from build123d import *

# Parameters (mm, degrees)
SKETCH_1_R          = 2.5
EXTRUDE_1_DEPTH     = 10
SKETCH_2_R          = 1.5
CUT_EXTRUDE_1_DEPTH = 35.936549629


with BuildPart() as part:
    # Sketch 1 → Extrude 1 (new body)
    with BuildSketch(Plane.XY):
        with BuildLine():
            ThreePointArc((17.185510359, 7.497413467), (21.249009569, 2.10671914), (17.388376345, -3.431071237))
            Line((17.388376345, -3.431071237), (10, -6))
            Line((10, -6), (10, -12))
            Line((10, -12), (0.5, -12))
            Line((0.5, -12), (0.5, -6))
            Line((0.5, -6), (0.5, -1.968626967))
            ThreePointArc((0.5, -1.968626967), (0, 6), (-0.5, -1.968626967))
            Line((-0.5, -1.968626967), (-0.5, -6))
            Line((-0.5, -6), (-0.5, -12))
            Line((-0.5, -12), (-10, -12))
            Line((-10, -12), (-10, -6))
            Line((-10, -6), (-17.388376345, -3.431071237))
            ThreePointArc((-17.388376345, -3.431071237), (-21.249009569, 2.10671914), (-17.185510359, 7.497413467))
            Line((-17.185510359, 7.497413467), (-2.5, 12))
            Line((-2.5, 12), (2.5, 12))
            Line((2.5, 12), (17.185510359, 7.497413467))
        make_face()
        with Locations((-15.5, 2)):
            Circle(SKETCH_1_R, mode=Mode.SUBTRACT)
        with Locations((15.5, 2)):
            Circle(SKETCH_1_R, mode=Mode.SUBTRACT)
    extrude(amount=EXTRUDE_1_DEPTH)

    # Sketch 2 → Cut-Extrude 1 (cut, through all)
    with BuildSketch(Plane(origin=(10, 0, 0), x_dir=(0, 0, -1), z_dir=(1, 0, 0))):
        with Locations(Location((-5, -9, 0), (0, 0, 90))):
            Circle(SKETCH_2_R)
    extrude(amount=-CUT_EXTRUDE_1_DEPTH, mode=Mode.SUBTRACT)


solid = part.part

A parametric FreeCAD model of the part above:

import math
import FreeCAD as App
import Part
import Sketcher
from FreeCAD import Vector
Q = App.Units.Quantity

doc = App.newDocument("Part")
body = doc.addObject("PartDesign::Body", "Body")

sketch1 = body.newObject("Sketcher::SketchObject", "Sketch")
sketch1.AttachmentSupport = (doc.getObject("XY_Plane"), [""])
sketch1.MapMode = "FlatFace"
sketch1.addGeometry([
    Part.ArcOfCircle(Part.Circle(Vector(15.5, 2, 0), Vector(0, 0, 1), 5.8), math.radians(-71), math.radians(73)),
    Part.LineSegment(Vector(17.2, 7.5, 0), Vector(2.5, 12, 0)),
    Part.LineSegment(Vector(2.5, 12, 0), Vector(-2.5, 12, 0)),
    Part.LineSegment(Vector(-2.5, 12, 0), Vector(-17.2, 7.5, 0)),
    Part.ArcOfCircle(Part.Circle(Vector(-15.5, 2, 0), Vector(0, 0, 1), 5.8), math.radians(107), math.radians(251)),
    Part.LineSegment(Vector(-17.4, -3.4, 0), Vector(-10, -6, 0)),
    Part.LineSegment(Vector(-10, -6, 0), Vector(-10, -12, 0)),
    Part.LineSegment(Vector(-10, -12, 0), Vector(-0.5, -12, 0)),
    Part.LineSegment(Vector(-0.5, -12, 0), Vector(-0.5, -2, 0)),
    Part.ArcOfCircle(Part.Circle(Vector(0, 2, 0), Vector(0, 0, 1), 4), math.radians(-83), math.radians(263)),
    Part.LineSegment(Vector(0.5, -2, 0), Vector(0.5, -12, 0)),
    Part.LineSegment(Vector(0.5, -12, 0), Vector(10, -12, 0)),
    Part.LineSegment(Vector(10, -12, 0), Vector(10, -6, 0)),
    Part.LineSegment(Vector(10, -6, 0), Vector(17.4, -3.4, 0)),
    Part.Circle(Vector(15.5, 2, 0), Vector(0, 0, 1), 2.5),
    Part.Circle(Vector(-15.5, 2, 0), Vector(0, 0, 1), 2.5),
], False)
sketch1.addConstraint([
    Sketcher.Constraint("Tangent", 0, 2, 1, 1),
    Sketcher.Constraint("Coincident", 1, 2, 2, 1),
    Sketcher.Constraint("Coincident", 2, 2, 3, 1),
    Sketcher.Constraint("Tangent", 3, 2, 4, 1),
    Sketcher.Constraint("Tangent", 4, 2, 5, 1),
    Sketcher.Constraint("Coincident", 5, 2, 6, 1),
    Sketcher.Constraint("Coincident", 6, 2, 7, 1),
    Sketcher.Constraint("Coincident", 7, 2, 8, 1),
    Sketcher.Constraint("Coincident", 8, 2, 9, 2),
    Sketcher.Constraint("Coincident", 9, 1, 10, 1),
    Sketcher.Constraint("Coincident", 10, 2, 11, 1),
    Sketcher.Constraint("Coincident", 11, 2, 12, 1),
    Sketcher.Constraint("Coincident", 12, 2, 13, 1),
    Sketcher.Constraint("Tangent", 13, 2, 0, 1),
    Sketcher.Constraint("Horizontal", 2),
    Sketcher.Constraint("Vertical", 6),
    Sketcher.Constraint("Horizontal", 7),
    Sketcher.Constraint("Vertical", 8),
    Sketcher.Constraint("Vertical", 10),
    Sketcher.Constraint("Horizontal", 11),
    Sketcher.Constraint("Vertical", 12),
    Sketcher.Constraint("Coincident", 14, 3, 0, 3),
    Sketcher.Constraint("Coincident", 15, 3, 4, 3),
    Sketcher.Constraint("Equal", 0, 4),
    Sketcher.Constraint("Equal", 14, 15),
    Sketcher.Constraint("Symmetric", 0, 3, 4, 3, -2),
    Sketcher.Constraint("Symmetric", 8, 2, 9, 1, -2),
    Sketcher.Constraint("Symmetric", 6, 2, 11, 2, -2),
    Sketcher.Constraint("Horizontal", 4, 3, 9, 3),
    Sketcher.Constraint("Horizontal", 0, 2, 3, 2),
    Sketcher.Constraint("Horizontal", 5, 2, 12, 2),
    Sketcher.Constraint("Diameter", 14, Q("5 mm")),
    Sketcher.Constraint("Radius", 9, Q("4 mm")),
    Sketcher.Constraint("DistanceX", 2, 2, 2, 1, Q("5 mm")),
    Sketcher.Constraint("DistanceY", 6, 2, 6, 1, Q("6 mm")),
    Sketcher.Constraint("Radius", 0, Q("5.75 mm")),
    Sketcher.Constraint("DistanceX", 7, 1, 7, 2, Q("9.5 mm")),
    Sketcher.Constraint("DistanceY", -1, 1, 0, 3, Q("2 mm")),
    Sketcher.Constraint("DistanceY", -1, 1, 1, 2, Q("12 mm")),
    Sketcher.Constraint("DistanceX", 5, 2, -1, 1, Q("10 mm")),
    Sketcher.Constraint("DistanceY", 5, 2, -1, 1, Q("6 mm")),
    Sketcher.Constraint("DistanceX", 4, 3, 0, 3, Q("31 mm")),
])
pad1 = body.newObject("PartDesign::Pad", "Pad")
pad1.Profile = sketch1
pad1.Length = 10

sketch2 = body.newObject("Sketcher::SketchObject", "Sketch001")
sketch2.AttachmentSupport = (doc.getObject("YZ_Plane"), [""])
sketch2.MapMode = "FlatFace"
sketch2.AttachmentOffset = App.Placement(Vector(0, 0, 10), App.Rotation())
sketch2.addGeometry(Part.Circle(Vector(-9, 5, 0), Vector(0, 0, 1), 1.5), False)
sketch2.addConstraint([
    Sketcher.Constraint("Diameter", 0, Q("3 mm")),
    Sketcher.Constraint("DistanceX", 0, 3, -1, 1, Q("9 mm")),
    Sketcher.Constraint("DistanceY", -1, 1, 0, 3, Q("5 mm")),
])
pocket1 = body.newObject("PartDesign::Pocket", "Pocket")
pocket1.Profile = sketch2
pocket1.Type = "ThroughAll"

doc.recompute()
